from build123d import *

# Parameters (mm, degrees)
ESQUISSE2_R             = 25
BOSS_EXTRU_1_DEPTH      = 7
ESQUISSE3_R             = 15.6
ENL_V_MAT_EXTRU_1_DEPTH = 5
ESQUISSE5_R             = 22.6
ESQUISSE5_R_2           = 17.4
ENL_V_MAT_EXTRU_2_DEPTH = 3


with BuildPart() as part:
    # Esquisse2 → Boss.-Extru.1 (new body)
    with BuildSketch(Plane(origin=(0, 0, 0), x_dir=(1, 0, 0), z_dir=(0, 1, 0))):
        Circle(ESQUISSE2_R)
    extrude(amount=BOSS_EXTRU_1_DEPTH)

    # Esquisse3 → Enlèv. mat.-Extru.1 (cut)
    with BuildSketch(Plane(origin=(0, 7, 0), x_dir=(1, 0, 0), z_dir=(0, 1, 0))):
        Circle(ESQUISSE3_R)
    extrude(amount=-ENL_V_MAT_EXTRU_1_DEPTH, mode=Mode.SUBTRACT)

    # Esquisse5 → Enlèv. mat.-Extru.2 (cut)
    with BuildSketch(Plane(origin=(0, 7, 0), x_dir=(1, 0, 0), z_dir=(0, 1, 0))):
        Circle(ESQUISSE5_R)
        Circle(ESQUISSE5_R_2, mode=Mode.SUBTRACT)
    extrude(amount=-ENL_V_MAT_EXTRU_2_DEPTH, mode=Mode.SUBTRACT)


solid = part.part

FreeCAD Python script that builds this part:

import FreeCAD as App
import Part
import Sketcher

V = App.Vector
Q = App.Units.Quantity

doc = App.newDocument("Part")
body = doc.addObject("PartDesign::Body", "Body")

sketch1 = body.newObject("Sketcher::SketchObject", "Sketch")
sketch1.AttachmentSupport = (doc.getObject("XZ_Plane"), [""])
sketch1.MapMode = "FlatFace"
sketch1.addGeometry(Part.Circle(V(0, 0, 0), V(0, 0, 1), 25), False)
sketch1.addConstraint(Sketcher.Constraint("Coincident", 0, 3, -1, 1))
sketch1.addConstraint(Sketcher.Constraint("Diameter", 0, Q("50 mm")))
pad1 = body.newObject("PartDesign::Pad", "Pad")
pad1.Profile = sketch1
pad1.Length = 7
pad1.Reversed = True

sketch2 = body.newObject("Sketcher::SketchObject", "Sketch001")
sketch2.AttachmentSupport = (doc.getObject("XZ_Plane"), [""])
sketch2.MapMode = "FlatFace"
sketch2.AttachmentOffset = App.Placement(V(0, 0, -7), App.Rotation())
sketch2.addGeometry(Part.Circle(V(0, 0, 0), V(0, 0, 1), 16), False)
sketch2.addConstraint(Sketcher.Constraint("Coincident", 0, 3, -1, 1))
sketch2.addConstraint(Sketcher.Constraint("Diameter", 0, Q("31.2 mm")))
pocket1 = body.newObject("PartDesign::Pocket", "Pocket")
pocket1.Profile = sketch2
pocket1.Length = 5
pocket1.Reversed = True

sketch3 = body.newObject("Sketcher::SketchObject", "Sketch002")
sketch3.AttachmentSupport = (doc.getObject("XZ_Plane"), [""])
sketch3.MapMode = "FlatFace"
sketch3.AttachmentOffset = App.Placement(V(0, 0, -7), App.Rotation())
sketch3.addGeometry(Part.Circle(V(0, 0, 0), V(0, 0, 1), 23), False)
sketch3.addGeometry(Part.Circle(V(0, 0, 0), V(0, 0, 1), 17), False)
sketch3.addConstraint(Sketcher.Constraint("Coincident", 0, 3, -1, 1))
sketch3.addConstraint(Sketcher.Constraint("Coincident", 1, 3, -1, 1))
sketch3.addConstraint(Sketcher.Constraint("Diameter", 0, Q("45.2 mm")))
sketch3.addConstraint(Sketcher.Constraint("Diameter", 1, Q("34.8 mm")))
pocket2 = body.newObject("PartDesign::Pocket", "Pocket001")
pocket2.Profile = sketch3
pocket2.Length = 3
pocket2.Reversed = True

doc.recompute()
